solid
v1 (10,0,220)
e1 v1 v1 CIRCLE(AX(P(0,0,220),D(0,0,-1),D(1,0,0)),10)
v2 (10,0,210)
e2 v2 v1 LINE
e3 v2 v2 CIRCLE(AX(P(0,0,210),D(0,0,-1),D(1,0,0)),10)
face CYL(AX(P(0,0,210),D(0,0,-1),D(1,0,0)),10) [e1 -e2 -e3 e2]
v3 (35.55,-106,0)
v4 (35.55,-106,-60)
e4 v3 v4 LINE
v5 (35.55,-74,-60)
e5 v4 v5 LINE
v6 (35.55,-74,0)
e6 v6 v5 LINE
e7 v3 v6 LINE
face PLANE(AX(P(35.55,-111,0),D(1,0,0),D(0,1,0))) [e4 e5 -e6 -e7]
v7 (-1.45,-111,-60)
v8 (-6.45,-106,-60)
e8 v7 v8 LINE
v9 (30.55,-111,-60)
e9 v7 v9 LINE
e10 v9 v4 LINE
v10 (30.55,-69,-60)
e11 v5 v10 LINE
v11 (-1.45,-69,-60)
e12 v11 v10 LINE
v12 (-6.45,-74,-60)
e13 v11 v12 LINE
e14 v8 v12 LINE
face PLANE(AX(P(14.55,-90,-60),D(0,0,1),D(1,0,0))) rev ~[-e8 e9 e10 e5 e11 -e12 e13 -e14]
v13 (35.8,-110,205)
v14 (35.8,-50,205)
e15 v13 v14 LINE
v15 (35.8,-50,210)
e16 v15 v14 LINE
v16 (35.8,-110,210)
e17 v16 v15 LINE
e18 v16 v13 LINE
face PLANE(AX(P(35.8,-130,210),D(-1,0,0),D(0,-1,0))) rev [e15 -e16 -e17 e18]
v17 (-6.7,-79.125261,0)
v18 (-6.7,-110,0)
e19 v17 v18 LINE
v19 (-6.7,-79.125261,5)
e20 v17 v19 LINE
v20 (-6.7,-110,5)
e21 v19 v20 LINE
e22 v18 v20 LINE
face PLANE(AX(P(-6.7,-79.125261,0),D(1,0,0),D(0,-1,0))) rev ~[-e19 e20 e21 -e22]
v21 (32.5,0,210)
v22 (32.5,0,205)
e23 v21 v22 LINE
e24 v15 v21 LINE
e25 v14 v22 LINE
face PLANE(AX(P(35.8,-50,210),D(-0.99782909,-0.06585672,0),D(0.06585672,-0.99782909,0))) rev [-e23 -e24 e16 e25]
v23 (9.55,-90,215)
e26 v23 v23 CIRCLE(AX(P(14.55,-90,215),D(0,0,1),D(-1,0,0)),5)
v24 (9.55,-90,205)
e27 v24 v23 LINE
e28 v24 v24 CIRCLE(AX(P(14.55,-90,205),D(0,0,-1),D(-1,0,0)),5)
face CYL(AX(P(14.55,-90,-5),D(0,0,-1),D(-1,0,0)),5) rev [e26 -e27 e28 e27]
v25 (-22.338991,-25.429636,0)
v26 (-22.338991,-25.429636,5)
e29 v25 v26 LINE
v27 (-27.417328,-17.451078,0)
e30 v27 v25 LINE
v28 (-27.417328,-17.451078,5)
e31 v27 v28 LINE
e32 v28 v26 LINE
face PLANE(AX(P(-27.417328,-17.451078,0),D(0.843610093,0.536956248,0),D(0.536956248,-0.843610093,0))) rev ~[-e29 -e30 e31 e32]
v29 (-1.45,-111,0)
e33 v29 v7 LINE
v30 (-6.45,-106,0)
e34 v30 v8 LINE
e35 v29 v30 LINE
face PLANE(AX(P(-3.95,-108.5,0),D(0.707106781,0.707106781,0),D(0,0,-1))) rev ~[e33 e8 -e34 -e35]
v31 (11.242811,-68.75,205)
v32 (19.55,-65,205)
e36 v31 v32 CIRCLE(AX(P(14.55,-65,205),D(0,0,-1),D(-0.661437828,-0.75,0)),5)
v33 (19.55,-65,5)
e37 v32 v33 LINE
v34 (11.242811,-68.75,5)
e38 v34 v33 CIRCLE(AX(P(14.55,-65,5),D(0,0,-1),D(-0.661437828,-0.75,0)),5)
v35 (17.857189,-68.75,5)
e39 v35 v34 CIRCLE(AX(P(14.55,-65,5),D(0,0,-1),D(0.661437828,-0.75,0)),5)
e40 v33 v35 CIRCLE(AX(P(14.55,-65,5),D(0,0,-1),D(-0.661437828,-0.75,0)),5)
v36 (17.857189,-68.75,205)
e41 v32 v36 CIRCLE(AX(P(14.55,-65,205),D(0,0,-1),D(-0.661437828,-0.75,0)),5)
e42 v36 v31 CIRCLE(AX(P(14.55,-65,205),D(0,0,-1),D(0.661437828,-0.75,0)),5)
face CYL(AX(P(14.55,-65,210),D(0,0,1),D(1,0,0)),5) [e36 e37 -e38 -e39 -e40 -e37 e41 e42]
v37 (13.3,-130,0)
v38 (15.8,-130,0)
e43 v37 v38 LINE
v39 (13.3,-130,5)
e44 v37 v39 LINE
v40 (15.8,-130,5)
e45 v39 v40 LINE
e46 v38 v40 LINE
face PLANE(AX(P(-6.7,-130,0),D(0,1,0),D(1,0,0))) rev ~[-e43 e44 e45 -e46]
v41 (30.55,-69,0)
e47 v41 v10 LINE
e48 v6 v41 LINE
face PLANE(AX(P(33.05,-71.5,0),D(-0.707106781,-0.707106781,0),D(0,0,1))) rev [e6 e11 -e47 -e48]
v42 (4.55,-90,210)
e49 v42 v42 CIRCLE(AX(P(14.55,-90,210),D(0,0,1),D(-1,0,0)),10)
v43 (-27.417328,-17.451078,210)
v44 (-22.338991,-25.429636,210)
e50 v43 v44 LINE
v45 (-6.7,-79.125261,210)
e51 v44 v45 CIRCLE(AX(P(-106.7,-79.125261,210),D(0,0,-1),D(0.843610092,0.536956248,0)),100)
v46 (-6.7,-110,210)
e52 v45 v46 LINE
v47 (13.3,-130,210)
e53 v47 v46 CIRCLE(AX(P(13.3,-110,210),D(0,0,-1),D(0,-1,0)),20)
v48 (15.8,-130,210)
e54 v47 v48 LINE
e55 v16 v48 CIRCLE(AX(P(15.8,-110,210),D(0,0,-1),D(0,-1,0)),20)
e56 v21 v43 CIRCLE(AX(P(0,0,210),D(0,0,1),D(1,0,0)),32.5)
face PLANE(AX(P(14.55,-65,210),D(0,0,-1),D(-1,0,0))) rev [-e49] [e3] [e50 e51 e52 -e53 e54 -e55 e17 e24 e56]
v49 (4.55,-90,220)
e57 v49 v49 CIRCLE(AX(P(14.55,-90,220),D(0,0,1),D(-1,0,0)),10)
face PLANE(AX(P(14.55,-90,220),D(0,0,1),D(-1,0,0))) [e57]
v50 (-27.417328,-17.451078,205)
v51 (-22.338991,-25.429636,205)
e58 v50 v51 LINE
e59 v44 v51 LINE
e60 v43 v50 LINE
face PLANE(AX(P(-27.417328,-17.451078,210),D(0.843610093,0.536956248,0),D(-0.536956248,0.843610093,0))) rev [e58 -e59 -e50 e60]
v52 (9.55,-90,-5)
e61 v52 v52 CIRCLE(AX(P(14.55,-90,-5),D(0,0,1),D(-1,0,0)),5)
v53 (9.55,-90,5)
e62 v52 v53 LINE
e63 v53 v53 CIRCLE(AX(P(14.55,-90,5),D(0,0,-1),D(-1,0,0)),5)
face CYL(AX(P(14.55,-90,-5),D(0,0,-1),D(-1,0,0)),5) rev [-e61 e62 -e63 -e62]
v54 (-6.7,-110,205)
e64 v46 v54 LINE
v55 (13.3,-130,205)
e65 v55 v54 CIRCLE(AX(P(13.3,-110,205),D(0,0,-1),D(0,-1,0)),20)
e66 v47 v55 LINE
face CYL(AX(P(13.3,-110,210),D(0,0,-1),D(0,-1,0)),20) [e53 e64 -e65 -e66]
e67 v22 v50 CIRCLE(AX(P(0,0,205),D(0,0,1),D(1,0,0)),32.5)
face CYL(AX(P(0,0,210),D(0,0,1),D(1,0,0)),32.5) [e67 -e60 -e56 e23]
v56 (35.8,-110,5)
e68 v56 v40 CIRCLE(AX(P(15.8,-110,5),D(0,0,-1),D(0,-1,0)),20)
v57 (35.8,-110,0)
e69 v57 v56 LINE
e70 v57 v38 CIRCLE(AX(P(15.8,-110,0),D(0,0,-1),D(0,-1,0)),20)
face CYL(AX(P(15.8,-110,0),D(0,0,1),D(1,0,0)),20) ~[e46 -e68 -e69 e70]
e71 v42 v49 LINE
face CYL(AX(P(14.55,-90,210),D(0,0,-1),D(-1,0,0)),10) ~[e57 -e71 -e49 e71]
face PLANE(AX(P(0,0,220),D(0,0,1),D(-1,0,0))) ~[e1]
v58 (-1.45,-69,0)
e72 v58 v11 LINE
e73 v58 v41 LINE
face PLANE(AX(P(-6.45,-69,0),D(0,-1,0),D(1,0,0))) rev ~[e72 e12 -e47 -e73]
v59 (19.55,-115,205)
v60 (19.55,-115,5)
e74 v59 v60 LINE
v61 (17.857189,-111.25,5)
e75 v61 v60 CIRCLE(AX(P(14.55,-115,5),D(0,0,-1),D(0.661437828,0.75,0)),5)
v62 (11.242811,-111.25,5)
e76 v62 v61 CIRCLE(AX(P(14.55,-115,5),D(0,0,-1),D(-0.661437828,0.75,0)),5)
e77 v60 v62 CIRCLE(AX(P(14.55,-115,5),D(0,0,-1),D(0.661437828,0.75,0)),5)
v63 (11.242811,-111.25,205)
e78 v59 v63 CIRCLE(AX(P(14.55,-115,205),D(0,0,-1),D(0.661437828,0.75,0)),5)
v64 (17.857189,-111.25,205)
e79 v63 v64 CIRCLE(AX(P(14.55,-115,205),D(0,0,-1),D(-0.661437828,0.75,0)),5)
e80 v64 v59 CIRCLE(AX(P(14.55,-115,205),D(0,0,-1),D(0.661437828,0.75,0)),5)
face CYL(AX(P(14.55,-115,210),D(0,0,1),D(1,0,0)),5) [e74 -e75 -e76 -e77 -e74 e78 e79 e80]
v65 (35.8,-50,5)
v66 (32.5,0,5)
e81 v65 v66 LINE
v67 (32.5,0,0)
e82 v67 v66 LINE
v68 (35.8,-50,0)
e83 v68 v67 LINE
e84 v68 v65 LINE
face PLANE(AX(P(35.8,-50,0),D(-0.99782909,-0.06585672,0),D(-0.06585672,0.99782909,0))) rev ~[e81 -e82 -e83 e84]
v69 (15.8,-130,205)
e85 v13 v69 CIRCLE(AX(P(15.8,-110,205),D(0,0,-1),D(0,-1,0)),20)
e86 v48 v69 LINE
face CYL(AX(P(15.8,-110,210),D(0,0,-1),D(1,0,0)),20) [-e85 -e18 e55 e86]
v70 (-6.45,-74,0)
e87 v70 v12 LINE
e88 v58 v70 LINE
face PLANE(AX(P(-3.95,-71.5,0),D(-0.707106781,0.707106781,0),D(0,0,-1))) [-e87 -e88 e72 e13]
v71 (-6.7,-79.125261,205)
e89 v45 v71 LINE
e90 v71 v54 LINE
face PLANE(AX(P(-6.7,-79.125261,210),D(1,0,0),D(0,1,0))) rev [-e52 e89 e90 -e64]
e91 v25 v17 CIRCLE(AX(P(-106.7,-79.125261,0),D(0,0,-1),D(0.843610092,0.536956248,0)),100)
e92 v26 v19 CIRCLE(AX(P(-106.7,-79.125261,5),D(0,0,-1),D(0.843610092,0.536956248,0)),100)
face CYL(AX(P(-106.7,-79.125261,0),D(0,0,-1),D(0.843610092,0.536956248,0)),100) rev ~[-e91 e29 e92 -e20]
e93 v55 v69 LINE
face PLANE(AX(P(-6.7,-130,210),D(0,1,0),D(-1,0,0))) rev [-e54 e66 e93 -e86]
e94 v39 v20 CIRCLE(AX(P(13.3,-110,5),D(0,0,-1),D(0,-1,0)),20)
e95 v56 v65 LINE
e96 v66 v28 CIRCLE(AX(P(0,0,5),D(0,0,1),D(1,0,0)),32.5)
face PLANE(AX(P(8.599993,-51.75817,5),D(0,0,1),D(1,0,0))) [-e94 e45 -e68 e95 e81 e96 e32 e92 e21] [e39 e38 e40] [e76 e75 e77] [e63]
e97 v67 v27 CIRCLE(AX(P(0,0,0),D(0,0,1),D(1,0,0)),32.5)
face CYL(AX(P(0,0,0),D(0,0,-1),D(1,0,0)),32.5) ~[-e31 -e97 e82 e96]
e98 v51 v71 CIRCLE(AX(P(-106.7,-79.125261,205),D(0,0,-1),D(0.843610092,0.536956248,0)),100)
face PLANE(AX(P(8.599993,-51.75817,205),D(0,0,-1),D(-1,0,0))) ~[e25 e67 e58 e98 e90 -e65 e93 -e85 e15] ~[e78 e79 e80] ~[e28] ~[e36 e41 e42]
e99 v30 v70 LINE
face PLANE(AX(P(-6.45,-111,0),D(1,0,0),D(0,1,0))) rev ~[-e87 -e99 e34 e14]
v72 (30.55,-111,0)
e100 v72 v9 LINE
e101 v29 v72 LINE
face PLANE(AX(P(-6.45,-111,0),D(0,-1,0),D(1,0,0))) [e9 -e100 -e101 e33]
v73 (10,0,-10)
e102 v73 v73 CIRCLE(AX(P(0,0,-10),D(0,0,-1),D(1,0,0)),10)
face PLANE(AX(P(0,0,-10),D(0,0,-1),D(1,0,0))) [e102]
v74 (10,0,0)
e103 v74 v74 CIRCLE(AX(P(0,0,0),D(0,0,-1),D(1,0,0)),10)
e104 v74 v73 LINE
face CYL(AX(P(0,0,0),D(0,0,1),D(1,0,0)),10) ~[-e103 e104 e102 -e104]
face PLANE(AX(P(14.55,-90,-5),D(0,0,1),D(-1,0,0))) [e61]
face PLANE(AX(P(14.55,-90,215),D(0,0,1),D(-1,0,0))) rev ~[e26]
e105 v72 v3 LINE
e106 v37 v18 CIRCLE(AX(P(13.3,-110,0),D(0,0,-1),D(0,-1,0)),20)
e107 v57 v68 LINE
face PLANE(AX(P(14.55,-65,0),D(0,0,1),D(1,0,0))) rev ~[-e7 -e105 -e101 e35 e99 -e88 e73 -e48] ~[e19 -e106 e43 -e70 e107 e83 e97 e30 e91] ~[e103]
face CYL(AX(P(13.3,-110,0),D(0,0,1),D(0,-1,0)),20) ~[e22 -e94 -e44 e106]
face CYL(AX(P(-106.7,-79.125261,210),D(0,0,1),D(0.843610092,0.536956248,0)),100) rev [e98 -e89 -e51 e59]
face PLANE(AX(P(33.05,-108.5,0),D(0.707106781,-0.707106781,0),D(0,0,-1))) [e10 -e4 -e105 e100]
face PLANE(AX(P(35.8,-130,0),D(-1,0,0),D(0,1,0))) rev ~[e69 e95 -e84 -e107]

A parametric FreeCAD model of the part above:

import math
import FreeCAD as App
import Part
import Sketcher


def edges_at(feature, points):
    """Names of the edges that pass closest to the given points."""
    edges = feature.Shape.Edges
    near = lambda p: min(range(len(edges)), key=lambda i: edges[i].distToShape(Part.Vertex(*p))[0])
    return sorted({f"Edge{near(p) + 1}" for p in points})


def add_polygon(sketch, points):
    """Adds a closed chain of lines whose ends are joined by coincident constraints."""
    first, n = sketch.GeometryCount, len(points)
    for a, b in zip(points, points[1:] + points[:1]):
        sketch.addGeometry(Part.LineSegment(App.Vector(*a, 0), App.Vector(*b, 0)), False)
    for i in range(n):
        sketch.addConstraint(Sketcher.Constraint("Coincident", first + i, 2, first + (i + 1) % n, 1))

doc = App.newDocument("Part")
params = doc.addObject("Spreadsheet::Sheet", "Params")
for row, (alias, value) in enumerate([
    ("sketch1_radius", "100 mm"),
    ("sketch1_radius2", "5 mm"),
    ("sketch1_radius3", "32.5 mm"),
    ("sketch1_width", "6 mm"),
    ("sketch1_height", "80 mm"),
    ("pad1_length", "5 mm"),
    ("sketch2_diameter", "10 mm"),
    ("pad2_length", "105 mm"),
    ("fillet_radius", "20 mm"),
    ("sketch3_diameter", "20 mm"),
    ("pad3_length", "10 mm"),
    ("sketch4_width", "42 mm"),
    ("pad4_length", "60 mm"),
    ("chamfer_size", "5 mm"),
    ("sketch5_diameter", "20 mm"),
    ("pad5_length", "10 mm"),
    ("sketch6_diameter", "10 mm"),
    ("pocket1_length", "210 mm"),
    ("pocket1_length2", "10 mm"),
], start=1):
    params.set(f"A{row}", alias)
    params.set(f"B{row}", "=" + value)
    params.setAlias(f"B{row}", alias)

body = doc.addObject("PartDesign::Body", "Body")

# Sketch on XY plane
sketch1 = body.newObject("Sketcher::SketchObject", "Sketch")
sketch1.AttachmentSupport = (doc.getObject("XY_Plane"), [""])
sketch1.MapMode = "FlatFace"
sketch1.addGeometry(Part.ArcOfCircle(Part.Circle(App.Vector(-107, -79, 0), App.Vector(0, 0, 1), 100), math.radians(0), math.radians(32)), False)
sketch1.addGeometry(Part.LineSegment(App.Vector(-7, -79, 0), App.Vector(-7, -130, 0)), False)
sketch1.addGeometry(Part.LineSegment(App.Vector(-7, -130, 0), App.Vector(36, -130, 0)), False)
sketch1.addGeometry(Part.LineSegment(App.Vector(36, -130, 0), App.Vector(36, -50, 0)), False)
sketch1.addGeometry(Part.LineSegment(App.Vector(36, -50, 0), App.Vector(32, 0, 0)), False)
sketch1.addGeometry(Part.ArcOfCircle(Part.Circle(App.Vector(0, 0, 0), App.Vector(0, 0, 1), 32), math.radians(0), math.radians(212)), False)
sketch1.addGeometry(Part.LineSegment(App.Vector(-27, -17, 0), App.Vector(-22, -25, 0)), False)
sketch1.addGeometry(Part.LineSegment(App.Vector(11, -111, 0), App.Vector(18, -111, 0)), False)
sketch1.addGeometry(Part.ArcOfCircle(Part.Circle(App.Vector(15, -115, 0), App.Vector(0, 0, 1), 5), math.radians(131), math.radians(409)), False)
sketch1.addGeometry(Part.LineSegment(App.Vector(18, -111, 0), App.Vector(12, -111, 0)), False)
sketch1.addGeometry(Part.ArcOfCircle(Part.Circle(App.Vector(15, -115, 0), App.Vector(0, 0, 1), 5), math.radians(53), math.radians(127)), False)
sketch1.addGeometry(Part.ArcOfCircle(Part.Circle(App.Vector(15, -65, 0), App.Vector(0, 0, 1), 5), math.radians(-49), math.radians(229)), False)
sketch1.addGeometry(Part.LineSegment(App.Vector(18, -69, 0), App.Vector(11, -69, 0)), False)
sketch1.addGeometry(Part.ArcOfCircle(Part.Circle(App.Vector(15, -65, 0), App.Vector(0, 0, 1), 5), math.radians(-127), math.radians(-53)), False)
sketch1.addGeometry(Part.LineSegment(App.Vector(12, -69, 0), App.Vector(18, -69, 0)), False)
sketch1.addConstraint(Sketcher.Constraint("Tangent", 0, 1, 1, 1))
sketch1.addConstraint(Sketcher.Constraint("Coincident", 1, 2, 2, 1))
sketch1.addConstraint(Sketcher.Constraint("Coincident", 2, 2, 3, 1))
sketch1.addConstraint(Sketcher.Constraint("Coincident", 3, 2, 4, 1))
sketch1.addConstraint(Sketcher.Constraint("Coincident", 4, 2, 5, 1))
sketch1.addConstraint(Sketcher.Constraint("Tangent", 5, 2, 6, 1))
sketch1.addConstraint(Sketcher.Constraint("Tangent", 6, 2, 0, 2))
sketch1.addConstraint(Sketcher.Constraint("Coincident", 7, 1, 8, 1))
sketch1.addConstraint(Sketcher.Constraint("Coincident", 8, 2, 7, 2))
sketch1.addConstraint(Sketcher.Constraint("Coincident", 9, 1, 10, 1))
sketch1.addConstraint(Sketcher.Constraint("Coincident", 10, 2, 9, 2))
sketch1.addConstraint(Sketcher.Constraint("Coincident", 11, 1, 12, 1))
sketch1.addConstraint(Sketcher.Constraint("Coincident", 12, 2, 11, 2))
sketch1.addConstraint(Sketcher.Constraint("Coincident", 13, 1, 14, 1))
sketch1.addConstraint(Sketcher.Constraint("Coincident", 14, 2, 13, 2))
sketch1.addConstraint(Sketcher.Constraint("Vertical", 1))
sketch1.addConstraint(Sketcher.Constraint("Horizontal", 2))
sketch1.addConstraint(Sketcher.Constraint("Vertical", 3))
sketch1.addConstraint(Sketcher.Constraint("Horizontal", 7))
sketch1.addConstraint(Sketcher.Constraint("Horizontal", 9))
sketch1.addConstraint(Sketcher.Constraint("Horizontal", 12))
sketch1.addConstraint(Sketcher.Constraint("Horizontal", 14))
sketch1.addConstraint(Sketcher.Constraint("Coincident", 5, 3, -1, 1))
sketch1.addConstraint(Sketcher.Constraint("Coincident", 10, 3, 8, 3))
sketch1.addConstraint(Sketcher.Constraint("Coincident", 13, 3, 11, 3))
sketch1.addConstraint(Sketcher.Constraint("Equal", 8, 10))
sketch1.addConstraint(Sketcher.Constraint("Equal", 10, 11))
sketch1.addConstraint(Sketcher.Constraint("Equal", 11, 13))
sketch1.addConstraint(Sketcher.Constraint("PointOnObject", 4, 2, -1))
sketch1.addConstraint(Sketcher.Constraint("Vertical", 10, 3, 11, 3))
sketch1.addConstraint(Sketcher.Constraint("Vertical", 8, 2, 11, 1))
sketch1.addConstraint(Sketcher.Constraint("Vertical", 10, 2, 13, 1))
sketch1.addConstraint(Sketcher.Constraint("Radius", 0, 100.0))
sketch1.addConstraint(Sketcher.Constraint("Radius", 8, 5.0))
sketch1.addConstraint(Sketcher.Constraint("Radius", 5, 32.5))
sketch1.addConstraint(Sketcher.Constraint("DistanceX", 9, 2, 9, 1, 6.0))
sketch1.addConstraint(Sketcher.Constraint("DistanceY", 3, 1, 3, 2, 80.0))
sketch1.addConstraint(Sketcher.Constraint("DistanceX", 2, 1, 2, 2, 42.5))
sketch1.addConstraint(Sketcher.Constraint("DistanceY", 8, 3, -1, 1, 115.0))
sketch1.addConstraint(Sketcher.Constraint("DistanceY", 11, 3, -1, 1, 65.0))
sketch1.addConstraint(Sketcher.Constraint("DistanceY", 1, 2, -1, 1, 130.0))
sketch1.addConstraint(Sketcher.Constraint("DistanceX", 0, 3, -1, 1, 106.7))
sketch1.addConstraint(Sketcher.Constraint("DistanceX", -1, 1, 8, 3, 14.55))
sketch1.addConstraint(Sketcher.Constraint("DistanceY", 7, 1, -1, 1, 111.25))
sketch1.addConstraint(Sketcher.Constraint("DistanceY", 1, 2, 1, 1, 50.874739))
sketch1.setExpression("Constraints[32]", "Params.sketch1_radius")
sketch1.setExpression("Constraints[33]", "Params.sketch1_radius2")
sketch1.setExpression("Constraints[34]", "Params.sketch1_radius3")
sketch1.setExpression("Constraints[35]", "Params.sketch1_width")
sketch1.setExpression("Constraints[36]", "Params.sketch1_height")
pad1 = body.newObject("PartDesign::Pad", "Pad")
pad1.Profile = sketch1
pad1.setExpression("Length", "Params.pad1_length")

# Sketch on XY plane
sketch2 = body.newObject("Sketcher::SketchObject", "Sketch001")
sketch2.AttachmentSupport = (doc.getObject("XY_Plane"), [""])
sketch2.MapMode = "FlatFace"
sketch2.addGeometry(Part.Circle(App.Vector(15, -65, 0), App.Vector(0, 0, 1), 5), False)
sketch2.addGeometry(Part.Circle(App.Vector(15, -115, 0), App.Vector(0, 0, 1), 5), False)
sketch2.addConstraint(Sketcher.Constraint("Equal", 0, 1))
sketch2.addConstraint(Sketcher.Constraint("Vertical", 0, 3, 1, 3))
sketch2.addConstraint(Sketcher.Constraint("Diameter", 0, 10.0))
sketch2.addConstraint(Sketcher.Constraint("DistanceY", 0, 3, -1, 1, 65.0))
sketch2.addConstraint(Sketcher.Constraint("DistanceY", 1, 3, -1, 1, 115.0))
sketch2.addConstraint(Sketcher.Constraint("DistanceX", -1, 1, 0, 3, 14.55))
sketch2.setExpression("Constraints[2]", "Params.sketch2_diameter")
pad2 = body.newObject("PartDesign::Pad", "Pad001")
pad2.Profile = sketch2
pad2.setExpression("Length", "Params.pad2_length")
doc.recompute()

fillet = body.newObject("PartDesign::Fillet", "Fillet")
fillet.Base = (pad2, edges_at(pad2, [(35.8, -130, 2.5), (-6.7, -130, 2.5)]))
fillet.setExpression("Radius", "Params.fillet_radius")

# Sketch on XY plane
sketch3 = body.newObject("Sketcher::SketchObject", "Sketch002")
sketch3.AttachmentSupport = (doc.getObject("XY_Plane"), [""])
sketch3.MapMode = "FlatFace"
sketch3.addGeometry(Part.Circle(App.Vector(0, 0, 0), App.Vector(0, 0, 1), 10), False)
sketch3.addConstraint(Sketcher.Constraint("Coincident", 0, 3, -1, 1))
sketch3.addConstraint(Sketcher.Constraint("Diameter", 0, 20.0))
sketch3.setExpression("Constraints[1]", "Params.sketch3_diameter")
pad3 = body.newObject("PartDesign::Pad", "Pad002")
pad3.Profile = sketch3
pad3.setExpression("Length", "Params.pad3_length")
pad3.Reversed = True
body2 = doc.addObject("PartDesign::Body", "Body001")
doc.recompute()

body2.BaseFeature = body
doc.recompute()

mirroring = doc.addObject("Part::Mirroring", "Mirroring")
mirroring.Source = body
mirroring.Base = App.Vector(14.55, -65, 105)
mirroring.Normal = App.Vector(0, 0, 1)
body3 = doc.addObject("PartDesign::Body", "Body002")
body3.BaseFeature = mirroring
boolean = body2.newObject("PartDesign::Boolean", "Boolean")
boolean.Type = "Fuse"
boolean.addObjects([body3])
doc.recompute()

# Sketch on XY plane
sketch4 = body2.newObject("Sketcher::SketchObject", "Sketch003")
sketch4.AttachmentSupport = (doc.getObject("XY_Plane001"), [""])
sketch4.MapMode = "FlatFace"
add_polygon(sketch4, [(-6, -69), (-6, -111), (36, -111), (36, -69)])  # lines 0-3
sketch4.addConstraint(Sketcher.Constraint("Vertical", 0))
sketch4.addConstraint(Sketcher.Constraint("Horizontal", 1))
sketch4.addConstraint(Sketcher.Constraint("Vertical", 2))
sketch4.addConstraint(Sketcher.Constraint("Horizontal", 3))
sketch4.addConstraint(Sketcher.Constraint("Equal", 3, 0))
sketch4.addConstraint(Sketcher.Constraint("DistanceX", 1, 1, 1, 2, 42.0))
sketch4.addConstraint(Sketcher.Constraint("DistanceY", 0, 2, -1, 1, 111.0))
sketch4.addConstraint(Sketcher.Constraint("DistanceX", 0, 2, -1, 1, 6.45))
sketch4.setExpression("Constraints[9]", "Params.sketch4_width")
pad4 = body2.newObject("PartDesign::Pad", "Pad003")
pad4.Profile = sketch4
pad4.setExpression("Length", "Params.pad4_length")
pad4.Reversed = True
doc.recompute()

chamfer = body2.newObject("PartDesign::Chamfer", "Chamfer")
chamfer.Base = (pad4, edges_at(pad4, [
    (-6.45, -111, -30),
    (-6.45, -69, -30),
    (35.55, -69, -30),
    (35.55, -111, -30),
]))
chamfer.setExpression("Size", "Params.chamfer_size")

# Sketch on XY plane
sketch5 = body2.newObject("Sketcher::SketchObject", "Sketch004")
sketch5.AttachmentSupport = (doc.getObject("XY_Plane001"), [""])
sketch5.MapMode = "FlatFace"
sketch5.AttachmentOffset = App.Placement(App.Vector(0, 0, 210), App.Rotation())
sketch5.addGeometry(Part.Circle(App.Vector(15, -90, 0), App.Vector(0, 0, 1), 10), False)
sketch5.addConstraint(Sketcher.Constraint("Diameter", 0, 20.0))
sketch5.addConstraint(Sketcher.Constraint("DistanceY", 0, 3, -1, 1, 90.0))
sketch5.addConstraint(Sketcher.Constraint("DistanceX", -1, 1, 0, 3, 14.55))
sketch5.setExpression("Constraints[0]", "Params.sketch5_diameter")
pad5 = body2.newObject("PartDesign::Pad", "Pad004")
pad5.Profile = sketch5
pad5.setExpression("Length", "Params.pad5_length")

# Sketch on XY plane
sketch6 = body2.newObject("Sketcher::SketchObject", "Sketch005")
sketch6.AttachmentSupport = (doc.getObject("XY_Plane001"), [""])
sketch6.MapMode = "FlatFace"
sketch6.AttachmentOffset = App.Placement(App.Vector(0, 0, 5), App.Rotation())
sketch6.addGeometry(Part.Circle(App.Vector(15, -90, 0), App.Vector(0, 0, 1), 5), False)
sketch6.addConstraint(Sketcher.Constraint("Diameter", 0, 10.0))
sketch6.addConstraint(Sketcher.Constraint("DistanceY", 0, 3, -1, 1, 90.0))
sketch6.addConstraint(Sketcher.Constraint("DistanceX", -1, 1, 0, 3, 14.55))
sketch6.setExpression("Constraints[0]", "Params.sketch6_diameter")
pocket1 = body2.newObject("PartDesign::Pocket", "Pocket")
pocket1.Profile = sketch6
pocket1.Type = "TwoLengths"
pocket1.setExpression("Length", "Params.pocket1_length")
pocket1.setExpression("Length2", "Params.pocket1_length2")
pocket1.Reversed = True
mirroring.Visibility = False

doc.recompute()
